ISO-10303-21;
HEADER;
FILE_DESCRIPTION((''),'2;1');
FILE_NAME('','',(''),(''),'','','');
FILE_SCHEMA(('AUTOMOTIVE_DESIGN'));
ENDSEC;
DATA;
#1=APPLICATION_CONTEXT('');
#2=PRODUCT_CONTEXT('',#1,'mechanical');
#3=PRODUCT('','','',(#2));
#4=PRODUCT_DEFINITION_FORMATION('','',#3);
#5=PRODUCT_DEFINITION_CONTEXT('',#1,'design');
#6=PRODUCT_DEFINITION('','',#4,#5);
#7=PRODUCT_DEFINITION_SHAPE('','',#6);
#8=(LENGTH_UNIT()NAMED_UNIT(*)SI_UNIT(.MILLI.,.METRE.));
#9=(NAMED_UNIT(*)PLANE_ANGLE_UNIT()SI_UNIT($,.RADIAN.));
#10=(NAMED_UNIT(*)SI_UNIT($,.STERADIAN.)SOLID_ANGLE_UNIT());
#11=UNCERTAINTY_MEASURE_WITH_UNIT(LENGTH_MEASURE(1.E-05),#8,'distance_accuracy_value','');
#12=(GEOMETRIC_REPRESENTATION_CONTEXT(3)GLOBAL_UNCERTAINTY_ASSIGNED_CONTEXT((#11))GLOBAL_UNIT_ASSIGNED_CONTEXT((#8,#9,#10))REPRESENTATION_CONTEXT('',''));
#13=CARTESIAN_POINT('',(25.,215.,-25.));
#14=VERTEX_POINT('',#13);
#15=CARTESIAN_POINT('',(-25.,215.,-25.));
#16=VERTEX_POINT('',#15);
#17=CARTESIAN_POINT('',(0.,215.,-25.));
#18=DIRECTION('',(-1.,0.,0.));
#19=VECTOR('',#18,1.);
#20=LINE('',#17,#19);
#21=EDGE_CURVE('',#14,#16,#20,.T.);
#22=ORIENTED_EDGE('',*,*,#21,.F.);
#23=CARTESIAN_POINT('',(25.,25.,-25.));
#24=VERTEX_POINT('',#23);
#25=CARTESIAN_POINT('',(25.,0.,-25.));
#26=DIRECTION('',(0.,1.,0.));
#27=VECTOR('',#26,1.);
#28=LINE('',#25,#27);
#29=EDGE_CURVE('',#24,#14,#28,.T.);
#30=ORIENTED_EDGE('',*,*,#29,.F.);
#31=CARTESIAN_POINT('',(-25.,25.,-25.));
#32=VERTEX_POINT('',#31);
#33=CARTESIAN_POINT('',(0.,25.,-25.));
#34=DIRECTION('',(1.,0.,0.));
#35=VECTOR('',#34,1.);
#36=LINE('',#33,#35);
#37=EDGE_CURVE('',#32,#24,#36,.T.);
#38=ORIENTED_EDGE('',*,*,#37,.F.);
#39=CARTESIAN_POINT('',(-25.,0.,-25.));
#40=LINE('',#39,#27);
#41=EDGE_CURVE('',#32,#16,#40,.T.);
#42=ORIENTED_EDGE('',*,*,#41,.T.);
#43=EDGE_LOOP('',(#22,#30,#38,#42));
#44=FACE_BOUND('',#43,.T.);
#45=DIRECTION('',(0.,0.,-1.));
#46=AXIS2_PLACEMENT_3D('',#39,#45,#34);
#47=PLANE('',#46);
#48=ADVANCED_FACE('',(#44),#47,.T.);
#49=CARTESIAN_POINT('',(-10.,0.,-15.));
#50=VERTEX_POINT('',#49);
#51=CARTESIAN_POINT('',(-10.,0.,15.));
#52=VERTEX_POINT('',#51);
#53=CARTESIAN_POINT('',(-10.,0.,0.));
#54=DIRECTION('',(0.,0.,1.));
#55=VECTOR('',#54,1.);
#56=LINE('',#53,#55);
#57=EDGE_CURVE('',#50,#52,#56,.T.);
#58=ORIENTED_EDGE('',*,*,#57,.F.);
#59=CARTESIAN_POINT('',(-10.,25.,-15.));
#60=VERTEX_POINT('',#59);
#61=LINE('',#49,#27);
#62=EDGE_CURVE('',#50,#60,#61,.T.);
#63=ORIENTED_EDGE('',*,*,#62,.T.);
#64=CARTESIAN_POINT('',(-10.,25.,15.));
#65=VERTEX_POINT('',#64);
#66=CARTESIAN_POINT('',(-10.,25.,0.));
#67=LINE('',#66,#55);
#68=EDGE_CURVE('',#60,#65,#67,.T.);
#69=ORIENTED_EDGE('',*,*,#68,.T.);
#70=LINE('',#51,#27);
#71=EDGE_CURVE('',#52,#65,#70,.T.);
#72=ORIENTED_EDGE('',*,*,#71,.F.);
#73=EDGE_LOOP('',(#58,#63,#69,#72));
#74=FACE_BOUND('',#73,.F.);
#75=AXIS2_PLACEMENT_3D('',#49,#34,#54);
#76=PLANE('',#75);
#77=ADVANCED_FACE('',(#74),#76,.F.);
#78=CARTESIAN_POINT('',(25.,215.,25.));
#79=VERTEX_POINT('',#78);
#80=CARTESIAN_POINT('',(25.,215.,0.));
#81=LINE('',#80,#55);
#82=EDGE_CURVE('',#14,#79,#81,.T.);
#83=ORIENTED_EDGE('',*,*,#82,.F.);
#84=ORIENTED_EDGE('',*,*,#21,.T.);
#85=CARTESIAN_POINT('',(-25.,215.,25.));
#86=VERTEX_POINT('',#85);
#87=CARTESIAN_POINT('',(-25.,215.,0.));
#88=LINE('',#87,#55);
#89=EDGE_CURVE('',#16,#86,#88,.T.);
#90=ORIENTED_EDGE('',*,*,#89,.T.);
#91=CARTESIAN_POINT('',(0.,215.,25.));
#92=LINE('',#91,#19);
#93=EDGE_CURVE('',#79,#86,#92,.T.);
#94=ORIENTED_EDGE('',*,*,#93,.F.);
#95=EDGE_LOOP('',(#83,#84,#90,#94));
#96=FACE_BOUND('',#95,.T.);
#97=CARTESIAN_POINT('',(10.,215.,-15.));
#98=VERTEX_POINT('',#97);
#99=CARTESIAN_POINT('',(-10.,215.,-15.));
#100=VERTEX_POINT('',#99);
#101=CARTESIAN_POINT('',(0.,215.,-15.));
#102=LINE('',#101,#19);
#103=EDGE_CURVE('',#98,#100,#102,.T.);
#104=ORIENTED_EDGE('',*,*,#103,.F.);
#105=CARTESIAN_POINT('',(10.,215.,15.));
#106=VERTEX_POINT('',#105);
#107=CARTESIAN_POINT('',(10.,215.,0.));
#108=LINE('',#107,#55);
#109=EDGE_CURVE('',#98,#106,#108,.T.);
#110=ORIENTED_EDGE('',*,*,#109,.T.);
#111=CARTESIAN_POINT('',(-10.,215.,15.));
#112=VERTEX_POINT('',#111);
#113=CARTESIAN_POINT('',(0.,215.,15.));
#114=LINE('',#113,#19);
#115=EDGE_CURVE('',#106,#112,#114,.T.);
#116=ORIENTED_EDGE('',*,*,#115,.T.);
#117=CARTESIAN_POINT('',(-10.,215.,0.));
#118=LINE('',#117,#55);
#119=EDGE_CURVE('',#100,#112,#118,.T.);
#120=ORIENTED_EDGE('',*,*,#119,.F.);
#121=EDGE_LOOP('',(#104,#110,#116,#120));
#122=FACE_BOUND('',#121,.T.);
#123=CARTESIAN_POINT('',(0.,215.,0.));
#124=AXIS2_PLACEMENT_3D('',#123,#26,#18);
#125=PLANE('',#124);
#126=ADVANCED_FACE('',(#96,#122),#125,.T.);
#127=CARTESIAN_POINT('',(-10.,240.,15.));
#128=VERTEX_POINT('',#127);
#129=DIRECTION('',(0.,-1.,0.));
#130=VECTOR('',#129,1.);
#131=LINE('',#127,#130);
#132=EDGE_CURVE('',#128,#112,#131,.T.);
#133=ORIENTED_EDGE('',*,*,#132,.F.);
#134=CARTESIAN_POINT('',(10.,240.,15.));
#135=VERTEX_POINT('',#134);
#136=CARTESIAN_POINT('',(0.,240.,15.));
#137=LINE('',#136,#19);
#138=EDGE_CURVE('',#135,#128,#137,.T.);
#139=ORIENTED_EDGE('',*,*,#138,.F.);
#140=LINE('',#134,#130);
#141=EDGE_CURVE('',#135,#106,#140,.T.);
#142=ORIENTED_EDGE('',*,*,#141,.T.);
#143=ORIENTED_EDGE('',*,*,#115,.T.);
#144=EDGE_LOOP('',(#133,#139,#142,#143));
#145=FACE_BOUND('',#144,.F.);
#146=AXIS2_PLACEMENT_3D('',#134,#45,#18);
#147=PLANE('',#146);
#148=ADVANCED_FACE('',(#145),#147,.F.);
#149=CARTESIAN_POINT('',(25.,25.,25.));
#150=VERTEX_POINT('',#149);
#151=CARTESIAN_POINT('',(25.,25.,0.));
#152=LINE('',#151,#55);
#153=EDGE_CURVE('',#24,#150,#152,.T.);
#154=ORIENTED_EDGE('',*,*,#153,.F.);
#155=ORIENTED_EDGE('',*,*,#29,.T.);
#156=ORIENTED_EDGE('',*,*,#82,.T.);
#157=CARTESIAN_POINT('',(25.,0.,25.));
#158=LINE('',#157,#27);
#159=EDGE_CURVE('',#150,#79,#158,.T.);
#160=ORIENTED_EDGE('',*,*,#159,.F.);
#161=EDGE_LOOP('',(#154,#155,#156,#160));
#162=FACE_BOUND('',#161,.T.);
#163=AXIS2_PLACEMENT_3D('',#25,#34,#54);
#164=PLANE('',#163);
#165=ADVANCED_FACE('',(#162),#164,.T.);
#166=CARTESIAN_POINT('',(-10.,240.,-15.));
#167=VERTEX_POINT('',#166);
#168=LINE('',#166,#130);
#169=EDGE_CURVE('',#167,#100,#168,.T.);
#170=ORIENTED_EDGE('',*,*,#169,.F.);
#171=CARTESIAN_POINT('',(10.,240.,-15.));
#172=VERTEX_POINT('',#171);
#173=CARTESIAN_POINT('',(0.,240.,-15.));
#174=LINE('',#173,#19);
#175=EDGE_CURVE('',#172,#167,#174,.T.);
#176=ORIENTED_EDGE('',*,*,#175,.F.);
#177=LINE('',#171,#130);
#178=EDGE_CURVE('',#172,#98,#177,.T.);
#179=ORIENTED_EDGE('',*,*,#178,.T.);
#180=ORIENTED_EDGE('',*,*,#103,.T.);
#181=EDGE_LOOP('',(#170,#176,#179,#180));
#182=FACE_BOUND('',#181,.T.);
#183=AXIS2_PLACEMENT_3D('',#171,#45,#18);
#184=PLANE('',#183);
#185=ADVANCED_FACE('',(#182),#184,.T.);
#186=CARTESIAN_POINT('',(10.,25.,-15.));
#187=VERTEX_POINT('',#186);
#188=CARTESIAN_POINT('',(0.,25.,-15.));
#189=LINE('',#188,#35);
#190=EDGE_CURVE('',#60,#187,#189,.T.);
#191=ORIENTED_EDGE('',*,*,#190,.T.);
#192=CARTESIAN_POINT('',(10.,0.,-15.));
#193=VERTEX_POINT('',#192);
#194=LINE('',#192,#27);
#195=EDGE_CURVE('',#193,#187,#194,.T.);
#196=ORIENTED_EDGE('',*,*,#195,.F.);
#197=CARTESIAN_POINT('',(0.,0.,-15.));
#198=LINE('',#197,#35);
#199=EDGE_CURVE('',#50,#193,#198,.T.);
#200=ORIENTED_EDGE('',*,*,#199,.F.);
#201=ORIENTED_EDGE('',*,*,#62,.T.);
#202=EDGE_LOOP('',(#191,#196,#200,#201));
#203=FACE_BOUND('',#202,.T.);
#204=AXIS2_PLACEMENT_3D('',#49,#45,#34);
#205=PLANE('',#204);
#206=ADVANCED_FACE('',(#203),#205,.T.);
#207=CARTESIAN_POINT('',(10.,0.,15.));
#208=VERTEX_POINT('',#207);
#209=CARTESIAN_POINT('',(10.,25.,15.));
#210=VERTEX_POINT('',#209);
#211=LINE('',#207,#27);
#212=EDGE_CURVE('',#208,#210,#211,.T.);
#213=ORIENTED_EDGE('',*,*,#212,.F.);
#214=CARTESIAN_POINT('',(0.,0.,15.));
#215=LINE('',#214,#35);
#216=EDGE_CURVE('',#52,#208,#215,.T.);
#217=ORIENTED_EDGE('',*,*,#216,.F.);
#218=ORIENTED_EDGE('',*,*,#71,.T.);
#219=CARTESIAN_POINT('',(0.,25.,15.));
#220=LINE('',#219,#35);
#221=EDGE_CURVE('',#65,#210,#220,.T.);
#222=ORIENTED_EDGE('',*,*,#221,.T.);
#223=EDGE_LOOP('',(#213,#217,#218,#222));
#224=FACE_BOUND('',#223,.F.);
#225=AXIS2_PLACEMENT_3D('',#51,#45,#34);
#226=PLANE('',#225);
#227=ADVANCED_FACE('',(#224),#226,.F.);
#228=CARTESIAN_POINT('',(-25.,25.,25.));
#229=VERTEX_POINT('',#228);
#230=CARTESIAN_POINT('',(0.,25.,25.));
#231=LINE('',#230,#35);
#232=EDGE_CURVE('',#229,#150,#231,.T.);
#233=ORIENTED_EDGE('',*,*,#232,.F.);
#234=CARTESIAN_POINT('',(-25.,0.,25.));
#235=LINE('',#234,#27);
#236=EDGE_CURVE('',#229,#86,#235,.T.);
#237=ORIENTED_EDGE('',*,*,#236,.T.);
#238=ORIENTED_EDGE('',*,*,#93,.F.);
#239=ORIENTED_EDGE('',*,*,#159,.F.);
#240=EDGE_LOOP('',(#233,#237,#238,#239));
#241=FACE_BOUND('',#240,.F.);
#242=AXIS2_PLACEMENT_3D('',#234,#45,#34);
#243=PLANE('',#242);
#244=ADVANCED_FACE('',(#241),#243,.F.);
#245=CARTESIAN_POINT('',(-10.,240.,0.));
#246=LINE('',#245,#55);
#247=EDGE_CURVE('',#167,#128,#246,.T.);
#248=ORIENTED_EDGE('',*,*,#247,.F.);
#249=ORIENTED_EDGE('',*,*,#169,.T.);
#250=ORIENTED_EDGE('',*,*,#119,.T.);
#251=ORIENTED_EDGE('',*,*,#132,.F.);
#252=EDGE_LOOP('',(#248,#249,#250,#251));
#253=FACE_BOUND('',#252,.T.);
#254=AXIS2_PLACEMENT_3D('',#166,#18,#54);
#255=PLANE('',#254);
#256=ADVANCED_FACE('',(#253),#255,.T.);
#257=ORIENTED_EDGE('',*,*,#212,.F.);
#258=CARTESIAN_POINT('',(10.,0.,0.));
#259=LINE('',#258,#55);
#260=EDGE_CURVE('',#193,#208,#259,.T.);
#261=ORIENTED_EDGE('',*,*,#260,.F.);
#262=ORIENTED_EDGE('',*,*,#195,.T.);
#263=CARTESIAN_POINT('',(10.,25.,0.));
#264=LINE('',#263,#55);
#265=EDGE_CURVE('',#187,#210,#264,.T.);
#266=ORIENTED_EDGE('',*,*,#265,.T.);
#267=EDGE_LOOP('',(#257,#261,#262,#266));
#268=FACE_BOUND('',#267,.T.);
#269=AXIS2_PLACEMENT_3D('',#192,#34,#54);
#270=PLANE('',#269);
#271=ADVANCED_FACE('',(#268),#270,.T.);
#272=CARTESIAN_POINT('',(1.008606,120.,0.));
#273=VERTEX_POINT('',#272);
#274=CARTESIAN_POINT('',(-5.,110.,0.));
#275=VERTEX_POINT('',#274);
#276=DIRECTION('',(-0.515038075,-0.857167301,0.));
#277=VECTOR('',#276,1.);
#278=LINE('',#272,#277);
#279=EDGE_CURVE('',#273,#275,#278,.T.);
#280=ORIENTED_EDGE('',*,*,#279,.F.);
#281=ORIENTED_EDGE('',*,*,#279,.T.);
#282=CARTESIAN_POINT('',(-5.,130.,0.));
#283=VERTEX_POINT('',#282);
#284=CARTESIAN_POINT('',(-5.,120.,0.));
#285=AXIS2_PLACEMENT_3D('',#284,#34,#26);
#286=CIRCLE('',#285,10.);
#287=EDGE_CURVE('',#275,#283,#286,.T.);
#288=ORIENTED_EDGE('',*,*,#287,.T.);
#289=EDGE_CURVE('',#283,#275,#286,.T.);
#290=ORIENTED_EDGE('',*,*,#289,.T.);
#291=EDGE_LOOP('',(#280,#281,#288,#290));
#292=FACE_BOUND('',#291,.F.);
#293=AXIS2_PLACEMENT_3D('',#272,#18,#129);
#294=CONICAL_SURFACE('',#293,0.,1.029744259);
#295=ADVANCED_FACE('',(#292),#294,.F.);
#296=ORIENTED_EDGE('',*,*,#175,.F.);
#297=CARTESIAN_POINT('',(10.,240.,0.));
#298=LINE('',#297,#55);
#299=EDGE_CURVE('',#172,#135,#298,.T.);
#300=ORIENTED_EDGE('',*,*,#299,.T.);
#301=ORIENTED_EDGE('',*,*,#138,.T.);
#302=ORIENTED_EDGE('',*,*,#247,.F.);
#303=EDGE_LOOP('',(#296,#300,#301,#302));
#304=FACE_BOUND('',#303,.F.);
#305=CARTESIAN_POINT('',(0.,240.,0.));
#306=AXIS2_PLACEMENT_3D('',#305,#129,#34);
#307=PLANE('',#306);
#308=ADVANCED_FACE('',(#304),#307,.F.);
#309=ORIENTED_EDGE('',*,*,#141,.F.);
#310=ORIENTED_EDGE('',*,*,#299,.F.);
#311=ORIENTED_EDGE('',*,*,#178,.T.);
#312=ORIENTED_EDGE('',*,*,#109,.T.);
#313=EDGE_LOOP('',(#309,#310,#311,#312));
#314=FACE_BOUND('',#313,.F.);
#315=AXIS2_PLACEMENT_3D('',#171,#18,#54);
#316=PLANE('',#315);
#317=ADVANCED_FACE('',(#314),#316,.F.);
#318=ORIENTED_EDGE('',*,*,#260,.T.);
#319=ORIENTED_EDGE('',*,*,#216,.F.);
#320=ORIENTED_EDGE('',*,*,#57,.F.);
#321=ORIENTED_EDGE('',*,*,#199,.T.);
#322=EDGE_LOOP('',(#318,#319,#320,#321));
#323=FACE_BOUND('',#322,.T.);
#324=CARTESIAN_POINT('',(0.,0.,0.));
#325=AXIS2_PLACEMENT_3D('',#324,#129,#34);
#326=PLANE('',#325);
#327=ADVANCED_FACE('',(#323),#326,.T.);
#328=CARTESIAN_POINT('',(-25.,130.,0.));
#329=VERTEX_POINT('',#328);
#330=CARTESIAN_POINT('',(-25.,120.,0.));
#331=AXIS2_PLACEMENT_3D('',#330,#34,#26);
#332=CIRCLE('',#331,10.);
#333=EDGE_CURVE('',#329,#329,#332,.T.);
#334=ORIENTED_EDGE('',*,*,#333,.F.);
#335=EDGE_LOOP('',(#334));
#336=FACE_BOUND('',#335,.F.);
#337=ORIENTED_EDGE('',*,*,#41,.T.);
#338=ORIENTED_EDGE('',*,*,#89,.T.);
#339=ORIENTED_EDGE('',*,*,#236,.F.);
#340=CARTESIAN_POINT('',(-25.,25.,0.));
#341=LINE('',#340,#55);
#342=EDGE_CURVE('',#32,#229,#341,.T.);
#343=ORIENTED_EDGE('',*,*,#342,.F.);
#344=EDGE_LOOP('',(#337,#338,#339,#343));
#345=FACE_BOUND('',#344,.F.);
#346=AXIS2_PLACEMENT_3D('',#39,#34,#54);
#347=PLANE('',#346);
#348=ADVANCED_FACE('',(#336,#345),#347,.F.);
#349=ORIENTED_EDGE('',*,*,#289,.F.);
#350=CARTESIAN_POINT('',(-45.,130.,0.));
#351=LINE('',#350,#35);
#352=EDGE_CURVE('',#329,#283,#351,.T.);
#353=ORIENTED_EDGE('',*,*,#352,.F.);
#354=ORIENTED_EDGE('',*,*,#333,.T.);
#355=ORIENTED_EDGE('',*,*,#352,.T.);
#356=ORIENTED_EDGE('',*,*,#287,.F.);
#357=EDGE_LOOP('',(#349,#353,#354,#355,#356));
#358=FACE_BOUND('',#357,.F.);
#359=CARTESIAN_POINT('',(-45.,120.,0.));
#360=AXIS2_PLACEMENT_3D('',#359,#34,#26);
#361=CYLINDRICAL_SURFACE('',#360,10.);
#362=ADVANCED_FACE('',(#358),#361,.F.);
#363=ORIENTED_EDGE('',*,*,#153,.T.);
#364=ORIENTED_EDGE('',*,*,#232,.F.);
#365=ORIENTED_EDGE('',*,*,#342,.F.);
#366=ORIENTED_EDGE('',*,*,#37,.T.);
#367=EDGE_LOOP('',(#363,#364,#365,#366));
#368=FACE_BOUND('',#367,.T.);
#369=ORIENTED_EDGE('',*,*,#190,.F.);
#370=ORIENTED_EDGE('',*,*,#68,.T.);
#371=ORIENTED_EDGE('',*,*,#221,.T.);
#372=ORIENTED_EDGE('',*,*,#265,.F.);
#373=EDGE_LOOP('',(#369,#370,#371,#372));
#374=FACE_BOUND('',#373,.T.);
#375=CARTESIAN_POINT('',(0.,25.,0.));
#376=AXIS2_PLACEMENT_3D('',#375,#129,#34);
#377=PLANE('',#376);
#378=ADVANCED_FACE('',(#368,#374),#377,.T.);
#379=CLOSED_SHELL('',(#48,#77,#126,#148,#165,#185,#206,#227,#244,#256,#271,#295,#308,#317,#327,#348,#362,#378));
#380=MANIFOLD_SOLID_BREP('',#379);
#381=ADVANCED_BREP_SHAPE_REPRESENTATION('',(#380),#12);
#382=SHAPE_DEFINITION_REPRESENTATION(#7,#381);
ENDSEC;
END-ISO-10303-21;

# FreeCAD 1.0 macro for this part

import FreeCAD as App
import Part
import Sketcher
from FreeCAD import Vector

doc = App.newDocument("Part")
params = doc.addObject("Spreadsheet::Sheet", "Params")
for row, (alias, value) in enumerate([
    ("sketch1_width", "50 mm"),
    ("pad1_length", "240 mm"),
    ("sketch2_width", "50 mm"),
    ("sketch2_width2", "20 mm"),
    ("sketch2_height", "30 mm"),
    ("pocket1_length", "25 mm"),
    ("sketch3_width", "50 mm"),
    ("sketch3_width2", "20 mm"),
    ("sketch3_height", "30 mm"),
    ("pocket2_length", "25 mm"),
    ("sketch4_diameter", "20 mm"),
    ("hole_diameter", "20 mm"),
    ("hole_depth", "20 mm"),
], start=1):
    params.set(f"A{row}", alias)
    params.set(f"B{row}", "=" + value)
    params.setAlias(f"B{row}", alias)

body = doc.addObject("PartDesign::Body", "Body")

# Sketch on XZ plane
sketch1 = doc.addObject("Sketcher::SketchObject", "Sketch")
body.addObject(sketch1)
sketch1.AttachmentSupport = (doc.XZ_Plane, [""])
sketch1.MapMode = "FlatFace"
sketch1.addGeometry([
    Part.LineSegment(Vector(-25, 25, 0), Vector(-25, -25, 0)),
    Part.LineSegment(Vector(-25, -25, 0), Vector(25, -25, 0)),
    Part.LineSegment(Vector(25, -25, 0), Vector(25, 25, 0)),
    Part.LineSegment(Vector(25, 25, 0), Vector(-25, 25, 0)),
], False)
sketch1.addConstraint([
    Sketcher.Constraint("Coincident", 0, 2, 1, 1),
    Sketcher.Constraint("Coincident", 1, 2, 2, 1),
    Sketcher.Constraint("Coincident", 2, 2, 3, 1),
    Sketcher.Constraint("Coincident", 3, 2, 0, 1),
    Sketcher.Constraint("Vertical", 0),
    Sketcher.Constraint("Horizontal", 1),
    Sketcher.Constraint("Vertical", 2),
    Sketcher.Constraint("Horizontal", 3),
    Sketcher.Constraint("Symmetric", 0, 2, 2, 2, -1, 1),
    Sketcher.Constraint("Equal", 3, 0),
    Sketcher.Constraint("DistanceX", 1, 1, 1, 2, 50.0),
])
sketch1.setExpression("Constraints[10]", "Params.sketch1_width")
pad1 = doc.addObject("PartDesign::Pad", "Pad")
body.addObject(pad1)
pad1.Profile = sketch1
pad1.setExpression("Length", "Params.pad1_length")
pad1.Reversed = True

# Sketch on XZ plane
sketch2 = doc.addObject("Sketcher::SketchObject", "Sketch001")
body.addObject(sketch2)
sketch2.AttachmentSupport = (doc.XZ_Plane, [""])
sketch2.MapMode = "FlatFace"
sketch2.addGeometry([
    Part.LineSegment(Vector(-25, 25, 0), Vector(-25, -25, 0)),  # 0
    Part.LineSegment(Vector(-25, -25, 0), Vector(25, -25, 0)),  # 1
    Part.LineSegment(Vector(25, -25, 0), Vector(25, 25, 0)),  # 2
    Part.LineSegment(Vector(25, 25, 0), Vector(-25, 25, 0)),  # 3
    Part.LineSegment(Vector(10, -15, 0), Vector(-10, -15, 0)),  # 4
    Part.LineSegment(Vector(-10, -15, 0), Vector(-10, 15, 0)),  # 5
    Part.LineSegment(Vector(-10, 15, 0), Vector(10, 15, 0)),  # 6
    Part.LineSegment(Vector(10, 15, 0), Vector(10, -15, 0)),  # 7
], False)
sketch2.addConstraint([
    Sketcher.Constraint("Coincident", 0, 2, 1, 1),
    Sketcher.Constraint("Coincident", 1, 2, 2, 1),
    Sketcher.Constraint("Coincident", 2, 2, 3, 1),
    Sketcher.Constraint("Coincident", 3, 2, 0, 1),
    Sketcher.Constraint("Coincident", 4, 2, 5, 1),
    Sketcher.Constraint("Coincident", 5, 2, 6, 1),
    Sketcher.Constraint("Coincident", 6, 2, 7, 1),
    Sketcher.Constraint("Coincident", 7, 2, 4, 1),
    Sketcher.Constraint("Vertical", 0),
    Sketcher.Constraint("Horizontal", 1),
    Sketcher.Constraint("Vertical", 2),
    Sketcher.Constraint("Horizontal", 3),
    Sketcher.Constraint("Horizontal", 4),
    Sketcher.Constraint("Vertical", 5),
    Sketcher.Constraint("Horizontal", 6),
    Sketcher.Constraint("Vertical", 7),
    Sketcher.Constraint("Symmetric", 0, 2, 2, 2, -1, 1),
    Sketcher.Constraint("Symmetric", 4, 2, 6, 2, -1, 1),
    Sketcher.Constraint("Equal", 3, 0),
    Sketcher.Constraint("DistanceX", 1, 1, 1, 2, 50.0),
    Sketcher.Constraint("DistanceX", 4, 2, 4, 1, 20.0),
    Sketcher.Constraint("DistanceY", 5, 1, 5, 2, 30.0),
])
sketch2.setExpression("Constraints[19]", "Params.sketch2_width")
sketch2.setExpression("Constraints[20]", "Params.sketch2_width2")
sketch2.setExpression("Constraints[21]", "Params.sketch2_height")
pocket1 = doc.addObject("PartDesign::Pocket", "Pocket")
body.addObject(pocket1)
pocket1.Profile = sketch2
pocket1.setExpression("Length", "Params.pocket1_length")

# Sketch on XZ plane
sketch3 = doc.addObject("Sketcher::SketchObject", "Sketch002")
body.addObject(sketch3)
sketch3.AttachmentSupport = (doc.XZ_Plane, [""])
sketch3.MapMode = "FlatFace"
sketch3.AttachmentOffset = App.Placement(Vector(0, 0, -240), App.Rotation())
sketch3.addGeometry([
    Part.LineSegment(Vector(25, 25, 0), Vector(25, -25, 0)),  # 0
    Part.LineSegment(Vector(25, -25, 0), Vector(-25, -25, 0)),  # 1
    Part.LineSegment(Vector(-25, -25, 0), Vector(-25, 25, 0)),  # 2
    Part.LineSegment(Vector(-25, 25, 0), Vector(25, 25, 0)),  # 3
    Part.LineSegment(Vector(-10, -15, 0), Vector(10, -15, 0)),  # 4
    Part.LineSegment(Vector(10, -15, 0), Vector(10, 15, 0)),  # 5
    Part.LineSegment(Vector(10, 15, 0), Vector(-10, 15, 0)),  # 6
    Part.LineSegment(Vector(-10, 15, 0), Vector(-10, -15, 0)),  # 7
], False)
sketch3.addConstraint([
    Sketcher.Constraint("Coincident", 0, 2, 1, 1),
    Sketcher.Constraint("Coincident", 1, 2, 2, 1),
    Sketcher.Constraint("Coincident", 2, 2, 3, 1),
    Sketcher.Constraint("Coincident", 3, 2, 0, 1),
    Sketcher.Constraint("Coincident", 4, 2, 5, 1),
    Sketcher.Constraint("Coincident", 5, 2, 6, 1),
    Sketcher.Constraint("Coincident", 6, 2, 7, 1),
    Sketcher.Constraint("Coincident", 7, 2, 4, 1),
    Sketcher.Constraint("Vertical", 0),
    Sketcher.Constraint("Horizontal", 1),
    Sketcher.Constraint("Vertical", 2),
    Sketcher.Constraint("Horizontal", 3),
    Sketcher.Constraint("Horizontal", 4),
    Sketcher.Constraint("Vertical", 5),
    Sketcher.Constraint("Horizontal", 6),
    Sketcher.Constraint("Vertical", 7),
    Sketcher.Constraint("Symmetric", 0, 2, 2, 2, -1, 1),
    Sketcher.Constraint("Symmetric", 4, 2, 6, 2, -1, 1),
    Sketcher.Constraint("Equal", 3, 0),
    Sketcher.Constraint("DistanceX", 1, 2, 1, 1, 50.0),
    Sketcher.Constraint("DistanceX", 4, 1, 4, 2, 20.0),
    Sketcher.Constraint("DistanceY", 5, 1, 5, 2, 30.0),
])
sketch3.setExpression("Constraints[19]", "Params.sketch3_width")
sketch3.setExpression("Constraints[20]", "Params.sketch3_width2")
sketch3.setExpression("Constraints[21]", "Params.sketch3_height")
pocket2 = doc.addObject("PartDesign::Pocket", "Pocket001")
body.addObject(pocket2)
pocket2.Profile = sketch3
pocket2.setExpression("Length", "Params.pocket2_length")
pocket2.Reversed = True

# Sketch on YZ plane
sketch4 = doc.addObject("Sketcher::SketchObject", "Sketch003")
body.addObject(sketch4)
sketch4.AttachmentSupport = (doc.YZ_Plane, [""])
sketch4.MapMode = "FlatFace"
sketch4.AttachmentOffset = App.Placement(Vector(0, 0, -25), App.Rotation())
sketch4.addGeometry(Part.Circle(Vector(120, 0, 0), Vector(0, 0, 1), 10), False)
sketch4.addConstraint([
    Sketcher.Constraint("PointOnObject", 0, 3, -1),
    Sketcher.Constraint("Diameter", 0, 20.0),
    Sketcher.Constraint("DistanceX", -1, 1, 0, 3, 120.0),
])
sketch4.setExpression("Constraints[1]", "Params.sketch4_diameter")
doc.recompute()
hole = doc.addObject("PartDesign::Hole", "Hole")
body.addObject(hole)
hole.Profile = sketch4
hole.ThreadType = "None"
hole.setExpression("Diameter", "Params.hole_diameter")
hole.DepthType = "Dimension"
hole.setExpression("Depth", "Params.hole_depth")
hole.DrillPoint = "Angled"
hole.DrillPointAngle = 118
hole.Reversed = True

doc.recompute()
